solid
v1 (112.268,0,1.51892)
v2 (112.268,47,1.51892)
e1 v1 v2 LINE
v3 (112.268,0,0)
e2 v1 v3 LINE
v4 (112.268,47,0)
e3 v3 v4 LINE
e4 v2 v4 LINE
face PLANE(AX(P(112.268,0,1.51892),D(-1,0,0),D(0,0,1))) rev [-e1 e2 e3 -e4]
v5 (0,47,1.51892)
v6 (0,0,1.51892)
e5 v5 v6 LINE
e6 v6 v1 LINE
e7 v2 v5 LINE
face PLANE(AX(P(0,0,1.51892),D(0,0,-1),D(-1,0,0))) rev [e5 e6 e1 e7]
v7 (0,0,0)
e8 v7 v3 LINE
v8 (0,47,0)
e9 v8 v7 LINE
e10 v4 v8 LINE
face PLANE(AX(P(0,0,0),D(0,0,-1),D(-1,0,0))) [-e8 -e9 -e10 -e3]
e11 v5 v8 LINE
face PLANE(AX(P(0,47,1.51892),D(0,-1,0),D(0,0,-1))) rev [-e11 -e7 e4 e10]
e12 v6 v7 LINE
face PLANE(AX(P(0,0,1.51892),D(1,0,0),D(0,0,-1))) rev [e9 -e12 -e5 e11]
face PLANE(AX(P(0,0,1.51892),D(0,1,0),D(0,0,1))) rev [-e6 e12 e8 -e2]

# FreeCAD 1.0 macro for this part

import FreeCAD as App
import Part
import Sketcher
Q = App.Units.Quantity


def add_polygon(sketch, points):
    """Adds a closed chain of lines whose ends are joined by coincident constraints."""
    first, n = sketch.GeometryCount, len(points)
    for a, b in zip(points, points[1:] + points[:1]):
        sketch.addGeometry(Part.LineSegment(App.Vector(*a, 0), App.Vector(*b, 0)), False)
    for i in range(n):
        sketch.addConstraint(Sketcher.Constraint("Coincident", first + i, 2, first + (i + 1) % n, 1))

doc = App.newDocument("Part")
body = doc.addObject("PartDesign::Body", "Body")

# Sketch on XY plane
sketch1 = body.newObject("Sketcher::SketchObject", "Sketch")
sketch1.AttachmentSupport = (doc.getObject("XY_Plane"), [""])
sketch1.MapMode = "FlatFace"
add_polygon(sketch1, [(0, 47), (0, 0), (112, 0), (112, 47)])  # lines 0-3
sketch1.addConstraint(Sketcher.Constraint("Vertical", 0))
sketch1.addConstraint(Sketcher.Constraint("Horizontal", 1))
sketch1.addConstraint(Sketcher.Constraint("Vertical", 2))
sketch1.addConstraint(Sketcher.Constraint("Horizontal", 3))
sketch1.addConstraint(Sketcher.Constraint("Coincident", 0, 2, -1, 1))
sketch1.addConstraint(Sketcher.Constraint("DistanceY", 0, 2, 0, 1, Q("47 mm")))
sketch1.addConstraint(Sketcher.Constraint("DistanceX", 1, 1, 1, 2, Q("112.268 mm")))
pad1 = body.newObject("PartDesign::Pad", "Pad")
pad1.Profile = sketch1
pad1.Length = 1.51892

doc.recompute()
